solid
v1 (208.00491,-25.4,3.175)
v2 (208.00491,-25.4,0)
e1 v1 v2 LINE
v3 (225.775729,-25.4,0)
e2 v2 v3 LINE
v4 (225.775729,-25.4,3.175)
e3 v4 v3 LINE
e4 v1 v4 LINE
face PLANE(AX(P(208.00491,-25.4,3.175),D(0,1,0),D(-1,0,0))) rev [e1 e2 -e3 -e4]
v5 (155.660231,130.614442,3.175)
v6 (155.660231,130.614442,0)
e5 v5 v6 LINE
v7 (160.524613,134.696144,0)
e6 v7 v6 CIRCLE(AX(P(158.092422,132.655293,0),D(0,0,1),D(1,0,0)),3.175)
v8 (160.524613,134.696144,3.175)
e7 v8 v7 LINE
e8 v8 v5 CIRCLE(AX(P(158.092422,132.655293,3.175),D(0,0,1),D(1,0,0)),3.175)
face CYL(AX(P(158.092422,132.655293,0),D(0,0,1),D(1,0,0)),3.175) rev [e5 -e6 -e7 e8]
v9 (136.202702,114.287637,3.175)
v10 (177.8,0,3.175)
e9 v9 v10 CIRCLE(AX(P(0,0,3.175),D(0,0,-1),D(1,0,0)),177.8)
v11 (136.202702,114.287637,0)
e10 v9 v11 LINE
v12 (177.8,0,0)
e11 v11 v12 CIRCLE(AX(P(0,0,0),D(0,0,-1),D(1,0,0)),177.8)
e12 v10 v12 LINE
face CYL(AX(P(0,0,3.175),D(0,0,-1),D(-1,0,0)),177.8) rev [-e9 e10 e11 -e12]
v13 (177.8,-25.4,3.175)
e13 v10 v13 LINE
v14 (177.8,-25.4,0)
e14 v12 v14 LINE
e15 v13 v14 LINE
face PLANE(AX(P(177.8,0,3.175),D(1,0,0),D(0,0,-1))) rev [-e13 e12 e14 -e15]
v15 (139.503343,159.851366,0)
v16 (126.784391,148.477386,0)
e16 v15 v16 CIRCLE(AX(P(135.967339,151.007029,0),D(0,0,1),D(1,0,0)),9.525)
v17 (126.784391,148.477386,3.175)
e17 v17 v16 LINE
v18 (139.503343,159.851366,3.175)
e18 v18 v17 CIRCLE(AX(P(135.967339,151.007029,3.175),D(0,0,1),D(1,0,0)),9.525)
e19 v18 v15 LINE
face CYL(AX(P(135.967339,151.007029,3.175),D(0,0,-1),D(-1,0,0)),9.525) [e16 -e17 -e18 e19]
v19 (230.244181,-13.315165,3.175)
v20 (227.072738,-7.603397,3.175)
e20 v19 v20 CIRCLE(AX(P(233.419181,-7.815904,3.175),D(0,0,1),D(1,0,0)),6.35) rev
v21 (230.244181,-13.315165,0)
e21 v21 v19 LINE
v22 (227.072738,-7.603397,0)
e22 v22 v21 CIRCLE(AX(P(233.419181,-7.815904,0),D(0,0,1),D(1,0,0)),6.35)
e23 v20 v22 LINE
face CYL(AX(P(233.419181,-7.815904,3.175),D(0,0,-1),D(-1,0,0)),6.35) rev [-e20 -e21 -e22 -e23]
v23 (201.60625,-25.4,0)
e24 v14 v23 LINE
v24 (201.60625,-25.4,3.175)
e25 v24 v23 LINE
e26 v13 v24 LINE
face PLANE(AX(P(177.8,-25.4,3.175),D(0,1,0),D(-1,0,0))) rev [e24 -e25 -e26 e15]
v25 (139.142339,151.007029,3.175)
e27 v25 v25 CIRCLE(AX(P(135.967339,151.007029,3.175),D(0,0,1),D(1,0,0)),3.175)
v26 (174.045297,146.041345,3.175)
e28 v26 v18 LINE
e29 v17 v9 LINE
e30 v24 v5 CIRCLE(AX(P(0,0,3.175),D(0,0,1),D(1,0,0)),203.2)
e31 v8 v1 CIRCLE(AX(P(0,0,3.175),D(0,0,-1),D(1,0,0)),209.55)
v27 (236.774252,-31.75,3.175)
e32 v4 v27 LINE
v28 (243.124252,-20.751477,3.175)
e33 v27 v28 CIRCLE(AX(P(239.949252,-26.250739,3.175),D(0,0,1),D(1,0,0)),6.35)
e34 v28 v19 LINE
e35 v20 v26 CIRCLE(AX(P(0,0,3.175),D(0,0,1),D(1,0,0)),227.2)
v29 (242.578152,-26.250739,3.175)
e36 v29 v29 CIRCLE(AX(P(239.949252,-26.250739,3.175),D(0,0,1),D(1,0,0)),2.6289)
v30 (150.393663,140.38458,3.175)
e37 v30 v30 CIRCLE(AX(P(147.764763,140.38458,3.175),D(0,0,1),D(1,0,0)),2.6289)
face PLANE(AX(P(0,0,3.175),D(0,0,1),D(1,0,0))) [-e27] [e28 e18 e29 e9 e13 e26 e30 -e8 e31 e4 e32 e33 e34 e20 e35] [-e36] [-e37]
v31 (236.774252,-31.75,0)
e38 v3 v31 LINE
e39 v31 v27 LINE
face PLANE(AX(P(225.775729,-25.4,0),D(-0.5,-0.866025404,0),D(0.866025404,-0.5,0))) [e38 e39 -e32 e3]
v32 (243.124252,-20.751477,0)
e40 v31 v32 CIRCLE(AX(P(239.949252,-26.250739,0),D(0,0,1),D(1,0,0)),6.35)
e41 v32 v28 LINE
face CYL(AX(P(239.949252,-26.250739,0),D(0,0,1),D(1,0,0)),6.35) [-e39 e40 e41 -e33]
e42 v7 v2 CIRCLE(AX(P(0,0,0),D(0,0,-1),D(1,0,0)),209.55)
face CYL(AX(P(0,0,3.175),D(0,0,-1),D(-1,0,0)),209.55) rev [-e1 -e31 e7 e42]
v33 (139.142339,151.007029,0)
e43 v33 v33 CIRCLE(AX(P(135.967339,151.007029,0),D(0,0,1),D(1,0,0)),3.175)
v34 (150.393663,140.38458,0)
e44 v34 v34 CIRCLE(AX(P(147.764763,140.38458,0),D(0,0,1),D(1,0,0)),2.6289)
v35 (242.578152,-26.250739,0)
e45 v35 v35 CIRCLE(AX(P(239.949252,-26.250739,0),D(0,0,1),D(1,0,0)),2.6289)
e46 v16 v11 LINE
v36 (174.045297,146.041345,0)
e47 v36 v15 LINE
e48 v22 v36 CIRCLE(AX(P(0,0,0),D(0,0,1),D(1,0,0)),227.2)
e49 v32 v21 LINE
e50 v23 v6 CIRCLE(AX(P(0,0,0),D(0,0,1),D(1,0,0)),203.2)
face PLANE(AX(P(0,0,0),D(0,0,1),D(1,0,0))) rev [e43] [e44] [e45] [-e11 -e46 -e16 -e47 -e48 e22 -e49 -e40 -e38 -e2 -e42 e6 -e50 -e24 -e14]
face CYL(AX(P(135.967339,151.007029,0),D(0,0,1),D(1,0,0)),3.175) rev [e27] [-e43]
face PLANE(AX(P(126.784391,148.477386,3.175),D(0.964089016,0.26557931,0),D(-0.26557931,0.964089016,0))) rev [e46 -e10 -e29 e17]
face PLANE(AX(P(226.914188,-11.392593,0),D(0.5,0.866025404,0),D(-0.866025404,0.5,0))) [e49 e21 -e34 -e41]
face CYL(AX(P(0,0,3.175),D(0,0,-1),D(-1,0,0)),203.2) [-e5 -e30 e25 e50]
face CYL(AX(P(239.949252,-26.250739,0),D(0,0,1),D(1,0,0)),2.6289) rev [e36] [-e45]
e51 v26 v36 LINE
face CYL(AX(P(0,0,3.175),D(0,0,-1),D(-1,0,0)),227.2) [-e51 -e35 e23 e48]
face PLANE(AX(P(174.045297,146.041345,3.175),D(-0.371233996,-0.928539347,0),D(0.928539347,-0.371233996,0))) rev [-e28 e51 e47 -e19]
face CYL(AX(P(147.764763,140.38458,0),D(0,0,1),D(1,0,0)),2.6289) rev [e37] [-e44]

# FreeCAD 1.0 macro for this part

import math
import FreeCAD as App
import Part
import Sketcher

V = App.Vector
Q = App.Units.Quantity


def edges_at(feature, points):
    """Names of the edges that pass closest to the given points."""
    edges = feature.Shape.Edges
    near = lambda p: min(range(len(edges)), key=lambda i: edges[i].distToShape(Part.Vertex(*p))[0])
    return sorted({f"Edge{near(p) + 1}" for p in points})

doc = App.newDocument("Part")
body = doc.addObject("PartDesign::Body", "Body")

sketch1 = body.newObject("Sketcher::SketchObject", "Sketch")
sketch1.AttachmentSupport = (doc.getObject("XY_Plane"), [""])
sketch1.MapMode = "FlatFace"
sketch1.addGeometry([
    Part.LineSegment(V(156, 131, 0), V(161, 135, 0)),
    Part.ArcOfCircle(Part.Circle(V(0, 0, 0), V(0, 0, 1), 210), math.radians(-7), math.radians(40)),
    Part.LineSegment(V(208, -25, 0), V(226, -25, 0)),
    Part.ArcOfCircle(Part.Circle(V(0, 0, 0), V(0, 0, 1), 227), math.radians(-6), math.radians(40)),
    Part.LineSegment(V(174, 146, 0), V(140, 160, 0)),
    Part.ArcOfCircle(Part.Circle(V(136, 151, 0), V(0, 0, 1), 10), math.radians(68), math.radians(195)),
    Part.LineSegment(V(127, 148, 0), V(136, 114, 0)),
    Part.ArcOfCircle(Part.Circle(V(0, 0, 0), V(0, 0, 1), 178), math.radians(0), math.radians(40)),
    Part.LineSegment(V(178, 0, 0), V(178, -25, 0)),
    Part.LineSegment(V(178, -25, 0), V(202, -25, 0)),
    Part.ArcOfCircle(Part.Circle(V(0, 0, 0), V(0, 0, 1), 203), math.radians(-7), math.radians(40)),
], False)
sketch1.addConstraint([
    Sketcher.Constraint("Coincident", 0, 2, 1, 2),
    Sketcher.Constraint("Coincident", 1, 1, 2, 1),
    Sketcher.Constraint("Coincident", 2, 2, 3, 1),
    Sketcher.Constraint("Coincident", 3, 2, 4, 1),
    Sketcher.Constraint("Tangent", 4, 2, 5, 1),
    Sketcher.Constraint("Tangent", 5, 2, 6, 1),
    Sketcher.Constraint("Coincident", 6, 2, 7, 2),
    Sketcher.Constraint("Tangent", 7, 1, 8, 1),
    Sketcher.Constraint("Coincident", 8, 2, 9, 1),
    Sketcher.Constraint("Coincident", 9, 2, 10, 1),
    Sketcher.Constraint("Coincident", 10, 2, 0, 1),
    Sketcher.Constraint("Horizontal", 2),
    Sketcher.Constraint("Vertical", 8),
    Sketcher.Constraint("Horizontal", 9),
    Sketcher.Constraint("Coincident", 1, 3, -1, 1),
    Sketcher.Constraint("Coincident", 3, 3, -1, 1),
    Sketcher.Constraint("Coincident", 7, 3, -1, 1),
    Sketcher.Constraint("Coincident", 10, 3, -1, 1),
    Sketcher.Constraint("Horizontal", 2, 2, 8, 2),
    Sketcher.Constraint("Radius", 7, Q("7 in")),
    Sketcher.Constraint("Radius", 10, Q("8 in")),
    Sketcher.Constraint("DistanceY", 8, 2, 8, 1, Q("1 in")),
    Sketcher.Constraint("Radius", 1, Q("8.25 in")),
    Sketcher.Constraint("Angle", 0, Q("40 deg")),
    Sketcher.Constraint("Radius", 5, Q("0.375 in")),
    Sketcher.Constraint("Radius", 3, Q("227.2 mm")),
    Sketcher.Constraint("DistanceX", -1, 1, 6, 2, Q("136.202702 mm")),
    Sketcher.Constraint("DistanceY", 0, 2, 3, 2, Q("11.345201 mm")),
    Sketcher.Constraint("Distance", 6, Q("35.46327 mm")),
    Sketcher.Constraint("DistanceX", -1, 1, 5, 3, Q("135.967339 mm")),
    Sketcher.Constraint("DistanceX", -1, 1, 10, 2, Q("155.660231 mm")),
])
pad1 = body.newObject("PartDesign::Pad", "Pad")
pad1.Profile = sketch1
pad1.Length = Q("0.125 in")

sketch2 = body.newObject("Sketcher::SketchObject", "Sketch001")
sketch2.AttachmentSupport = (doc.getObject("XY_Plane"), [""])
sketch2.MapMode = "FlatFace"
sketch2.AttachmentOffset = App.Placement(V(0, 0, 0.125 * 25.4), App.Rotation())
sketch2.addGeometry(Part.Circle(V(136, 151, 0), V(0, 0, 1), 3.2), False)
sketch2.addConstraint([
    Sketcher.Constraint("Diameter", 0, Q("0.25 in")),
    Sketcher.Constraint("DistanceX", -1, 1, 0, 3, Q("135.967339 mm")),
    Sketcher.Constraint("DistanceY", -1, 1, 0, 3, Q("151.007029 mm")),
])
pocket1 = body.newObject("PartDesign::Pocket", "Pocket")
pocket1.Profile = sketch2
pocket1.Type = "ThroughAll"

sketch3 = body.newObject("Sketcher::SketchObject", "Sketch002")
sketch3.AttachmentSupport = (doc.getObject("XY_Plane"), [""])
sketch3.MapMode = "FlatFace"
sketch3.AttachmentOffset = App.Placement(V(0, 0, 0.125 * 25.4), App.Rotation())
sketch3.addGeometry(Part.Circle(V(158.1, 132.7, 0), V(0, 0, 1), 3.2), False)
sketch3.addConstraint([
    Sketcher.Constraint("Diameter", 0, Q("0.25 in")),
    Sketcher.Constraint("DistanceX", -1, 1, 0, 3, Q("158.092422 mm")),
    Sketcher.Constraint("DistanceY", -1, 1, 0, 3, Q("132.655293 mm")),
])
pocket2 = body.newObject("PartDesign::Pocket", "Pocket001")
pocket2.Profile = sketch3
pocket2.Type = "ThroughAll"

sketch4 = body.newObject("Sketcher::SketchObject", "Sketch003")
sketch4.AttachmentSupport = (doc.getObject("XY_Plane"), [""])
sketch4.MapMode = "FlatFace"
sketch4.AttachmentOffset = App.Placement(V(0, 0, 0.125 * 25.4), App.Rotation())
sketch4.addGeometry([
    Part.LineSegment(V(225.8, -25.4, 0), V(236.8, -31.8, 0)),
    Part.ArcOfCircle(Part.Circle(V(239.9, -26.3, 0), V(0, 0, 1), 6.3), math.radians(-120), math.radians(60)),
    Part.LineSegment(V(243.1, -20.8, 0), V(226.9, -11.4, 0)),
    Part.ArcOfCircle(Part.Circle(V(0, 0, 0), V(0, 0, 1), 227.2), math.radians(-6.42), math.radians(-2.87)),
    Part.Circle(V(239.9, -26.3, 0), V(0, 0, 1), 2.6),
], False)
sketch4.addConstraint([
    Sketcher.Constraint("Tangent", 0, 2, 1, 1),
    Sketcher.Constraint("Tangent", 1, 2, 2, 1),
    Sketcher.Constraint("Coincident", 2, 2, 3, 2),
    Sketcher.Constraint("Coincident", 3, 1, 0, 1),
    Sketcher.Constraint("Coincident", 3, 3, -1, 1),
    Sketcher.Constraint("Coincident", 4, 3, 1, 3),
    Sketcher.Constraint("Parallel", 0, 2),
    Sketcher.Constraint("Radius", 1, Q("0.25 in")),
    Sketcher.Constraint("Diameter", 4, Q("0.207 in")),
    Sketcher.Constraint("DistanceY", 3, 1, -1, 1, Q("1 in")),
    Sketcher.Constraint("Angle", 0, Q("-30 deg")),
    Sketcher.Constraint("Distance", 0, Q("0.5 in")),
    Sketcher.Constraint("Radius", 3, Q("227.200001 mm")),
])
pad2 = body.newObject("PartDesign::Pad", "Pad001")
pad2.Profile = sketch4
pad2.Length = Q("0.125 in")
pad2.Reversed = True
doc.recompute()

fillet = body.newObject("PartDesign::Fillet", "Fillet")
fillet.Base = (pad2, edges_at(pad2, [(226.914, -11.393, 1.587)]))
fillet.Radius = Q("0.25 in")

sketch5 = body.newObject("Sketcher::SketchObject", "Sketch004")
sketch5.AttachmentSupport = (doc.getObject("XY_Plane"), [""])
sketch5.MapMode = "FlatFace"
sketch5.AttachmentOffset = App.Placement(V(0, 0, 0.125 * 25.4), App.Rotation())
sketch5.addGeometry(Part.Circle(V(147.8, 140.4, 0), V(0, 0, 1), 2.6), False)
sketch5.addConstraint([
    Sketcher.Constraint("Diameter", 0, Q("0.207 in")),
    Sketcher.Constraint("DistanceY", -1, 1, 0, 3, Q("140.38458 mm")),
    Sketcher.Constraint("DistanceX", -1, 1, 0, 3, Q("147.764763 mm")),
])
pocket3 = body.newObject("PartDesign::Pocket", "Pocket002")
pocket3.Profile = sketch5
pocket3.Type = "ThroughAll"

doc.recompute()
